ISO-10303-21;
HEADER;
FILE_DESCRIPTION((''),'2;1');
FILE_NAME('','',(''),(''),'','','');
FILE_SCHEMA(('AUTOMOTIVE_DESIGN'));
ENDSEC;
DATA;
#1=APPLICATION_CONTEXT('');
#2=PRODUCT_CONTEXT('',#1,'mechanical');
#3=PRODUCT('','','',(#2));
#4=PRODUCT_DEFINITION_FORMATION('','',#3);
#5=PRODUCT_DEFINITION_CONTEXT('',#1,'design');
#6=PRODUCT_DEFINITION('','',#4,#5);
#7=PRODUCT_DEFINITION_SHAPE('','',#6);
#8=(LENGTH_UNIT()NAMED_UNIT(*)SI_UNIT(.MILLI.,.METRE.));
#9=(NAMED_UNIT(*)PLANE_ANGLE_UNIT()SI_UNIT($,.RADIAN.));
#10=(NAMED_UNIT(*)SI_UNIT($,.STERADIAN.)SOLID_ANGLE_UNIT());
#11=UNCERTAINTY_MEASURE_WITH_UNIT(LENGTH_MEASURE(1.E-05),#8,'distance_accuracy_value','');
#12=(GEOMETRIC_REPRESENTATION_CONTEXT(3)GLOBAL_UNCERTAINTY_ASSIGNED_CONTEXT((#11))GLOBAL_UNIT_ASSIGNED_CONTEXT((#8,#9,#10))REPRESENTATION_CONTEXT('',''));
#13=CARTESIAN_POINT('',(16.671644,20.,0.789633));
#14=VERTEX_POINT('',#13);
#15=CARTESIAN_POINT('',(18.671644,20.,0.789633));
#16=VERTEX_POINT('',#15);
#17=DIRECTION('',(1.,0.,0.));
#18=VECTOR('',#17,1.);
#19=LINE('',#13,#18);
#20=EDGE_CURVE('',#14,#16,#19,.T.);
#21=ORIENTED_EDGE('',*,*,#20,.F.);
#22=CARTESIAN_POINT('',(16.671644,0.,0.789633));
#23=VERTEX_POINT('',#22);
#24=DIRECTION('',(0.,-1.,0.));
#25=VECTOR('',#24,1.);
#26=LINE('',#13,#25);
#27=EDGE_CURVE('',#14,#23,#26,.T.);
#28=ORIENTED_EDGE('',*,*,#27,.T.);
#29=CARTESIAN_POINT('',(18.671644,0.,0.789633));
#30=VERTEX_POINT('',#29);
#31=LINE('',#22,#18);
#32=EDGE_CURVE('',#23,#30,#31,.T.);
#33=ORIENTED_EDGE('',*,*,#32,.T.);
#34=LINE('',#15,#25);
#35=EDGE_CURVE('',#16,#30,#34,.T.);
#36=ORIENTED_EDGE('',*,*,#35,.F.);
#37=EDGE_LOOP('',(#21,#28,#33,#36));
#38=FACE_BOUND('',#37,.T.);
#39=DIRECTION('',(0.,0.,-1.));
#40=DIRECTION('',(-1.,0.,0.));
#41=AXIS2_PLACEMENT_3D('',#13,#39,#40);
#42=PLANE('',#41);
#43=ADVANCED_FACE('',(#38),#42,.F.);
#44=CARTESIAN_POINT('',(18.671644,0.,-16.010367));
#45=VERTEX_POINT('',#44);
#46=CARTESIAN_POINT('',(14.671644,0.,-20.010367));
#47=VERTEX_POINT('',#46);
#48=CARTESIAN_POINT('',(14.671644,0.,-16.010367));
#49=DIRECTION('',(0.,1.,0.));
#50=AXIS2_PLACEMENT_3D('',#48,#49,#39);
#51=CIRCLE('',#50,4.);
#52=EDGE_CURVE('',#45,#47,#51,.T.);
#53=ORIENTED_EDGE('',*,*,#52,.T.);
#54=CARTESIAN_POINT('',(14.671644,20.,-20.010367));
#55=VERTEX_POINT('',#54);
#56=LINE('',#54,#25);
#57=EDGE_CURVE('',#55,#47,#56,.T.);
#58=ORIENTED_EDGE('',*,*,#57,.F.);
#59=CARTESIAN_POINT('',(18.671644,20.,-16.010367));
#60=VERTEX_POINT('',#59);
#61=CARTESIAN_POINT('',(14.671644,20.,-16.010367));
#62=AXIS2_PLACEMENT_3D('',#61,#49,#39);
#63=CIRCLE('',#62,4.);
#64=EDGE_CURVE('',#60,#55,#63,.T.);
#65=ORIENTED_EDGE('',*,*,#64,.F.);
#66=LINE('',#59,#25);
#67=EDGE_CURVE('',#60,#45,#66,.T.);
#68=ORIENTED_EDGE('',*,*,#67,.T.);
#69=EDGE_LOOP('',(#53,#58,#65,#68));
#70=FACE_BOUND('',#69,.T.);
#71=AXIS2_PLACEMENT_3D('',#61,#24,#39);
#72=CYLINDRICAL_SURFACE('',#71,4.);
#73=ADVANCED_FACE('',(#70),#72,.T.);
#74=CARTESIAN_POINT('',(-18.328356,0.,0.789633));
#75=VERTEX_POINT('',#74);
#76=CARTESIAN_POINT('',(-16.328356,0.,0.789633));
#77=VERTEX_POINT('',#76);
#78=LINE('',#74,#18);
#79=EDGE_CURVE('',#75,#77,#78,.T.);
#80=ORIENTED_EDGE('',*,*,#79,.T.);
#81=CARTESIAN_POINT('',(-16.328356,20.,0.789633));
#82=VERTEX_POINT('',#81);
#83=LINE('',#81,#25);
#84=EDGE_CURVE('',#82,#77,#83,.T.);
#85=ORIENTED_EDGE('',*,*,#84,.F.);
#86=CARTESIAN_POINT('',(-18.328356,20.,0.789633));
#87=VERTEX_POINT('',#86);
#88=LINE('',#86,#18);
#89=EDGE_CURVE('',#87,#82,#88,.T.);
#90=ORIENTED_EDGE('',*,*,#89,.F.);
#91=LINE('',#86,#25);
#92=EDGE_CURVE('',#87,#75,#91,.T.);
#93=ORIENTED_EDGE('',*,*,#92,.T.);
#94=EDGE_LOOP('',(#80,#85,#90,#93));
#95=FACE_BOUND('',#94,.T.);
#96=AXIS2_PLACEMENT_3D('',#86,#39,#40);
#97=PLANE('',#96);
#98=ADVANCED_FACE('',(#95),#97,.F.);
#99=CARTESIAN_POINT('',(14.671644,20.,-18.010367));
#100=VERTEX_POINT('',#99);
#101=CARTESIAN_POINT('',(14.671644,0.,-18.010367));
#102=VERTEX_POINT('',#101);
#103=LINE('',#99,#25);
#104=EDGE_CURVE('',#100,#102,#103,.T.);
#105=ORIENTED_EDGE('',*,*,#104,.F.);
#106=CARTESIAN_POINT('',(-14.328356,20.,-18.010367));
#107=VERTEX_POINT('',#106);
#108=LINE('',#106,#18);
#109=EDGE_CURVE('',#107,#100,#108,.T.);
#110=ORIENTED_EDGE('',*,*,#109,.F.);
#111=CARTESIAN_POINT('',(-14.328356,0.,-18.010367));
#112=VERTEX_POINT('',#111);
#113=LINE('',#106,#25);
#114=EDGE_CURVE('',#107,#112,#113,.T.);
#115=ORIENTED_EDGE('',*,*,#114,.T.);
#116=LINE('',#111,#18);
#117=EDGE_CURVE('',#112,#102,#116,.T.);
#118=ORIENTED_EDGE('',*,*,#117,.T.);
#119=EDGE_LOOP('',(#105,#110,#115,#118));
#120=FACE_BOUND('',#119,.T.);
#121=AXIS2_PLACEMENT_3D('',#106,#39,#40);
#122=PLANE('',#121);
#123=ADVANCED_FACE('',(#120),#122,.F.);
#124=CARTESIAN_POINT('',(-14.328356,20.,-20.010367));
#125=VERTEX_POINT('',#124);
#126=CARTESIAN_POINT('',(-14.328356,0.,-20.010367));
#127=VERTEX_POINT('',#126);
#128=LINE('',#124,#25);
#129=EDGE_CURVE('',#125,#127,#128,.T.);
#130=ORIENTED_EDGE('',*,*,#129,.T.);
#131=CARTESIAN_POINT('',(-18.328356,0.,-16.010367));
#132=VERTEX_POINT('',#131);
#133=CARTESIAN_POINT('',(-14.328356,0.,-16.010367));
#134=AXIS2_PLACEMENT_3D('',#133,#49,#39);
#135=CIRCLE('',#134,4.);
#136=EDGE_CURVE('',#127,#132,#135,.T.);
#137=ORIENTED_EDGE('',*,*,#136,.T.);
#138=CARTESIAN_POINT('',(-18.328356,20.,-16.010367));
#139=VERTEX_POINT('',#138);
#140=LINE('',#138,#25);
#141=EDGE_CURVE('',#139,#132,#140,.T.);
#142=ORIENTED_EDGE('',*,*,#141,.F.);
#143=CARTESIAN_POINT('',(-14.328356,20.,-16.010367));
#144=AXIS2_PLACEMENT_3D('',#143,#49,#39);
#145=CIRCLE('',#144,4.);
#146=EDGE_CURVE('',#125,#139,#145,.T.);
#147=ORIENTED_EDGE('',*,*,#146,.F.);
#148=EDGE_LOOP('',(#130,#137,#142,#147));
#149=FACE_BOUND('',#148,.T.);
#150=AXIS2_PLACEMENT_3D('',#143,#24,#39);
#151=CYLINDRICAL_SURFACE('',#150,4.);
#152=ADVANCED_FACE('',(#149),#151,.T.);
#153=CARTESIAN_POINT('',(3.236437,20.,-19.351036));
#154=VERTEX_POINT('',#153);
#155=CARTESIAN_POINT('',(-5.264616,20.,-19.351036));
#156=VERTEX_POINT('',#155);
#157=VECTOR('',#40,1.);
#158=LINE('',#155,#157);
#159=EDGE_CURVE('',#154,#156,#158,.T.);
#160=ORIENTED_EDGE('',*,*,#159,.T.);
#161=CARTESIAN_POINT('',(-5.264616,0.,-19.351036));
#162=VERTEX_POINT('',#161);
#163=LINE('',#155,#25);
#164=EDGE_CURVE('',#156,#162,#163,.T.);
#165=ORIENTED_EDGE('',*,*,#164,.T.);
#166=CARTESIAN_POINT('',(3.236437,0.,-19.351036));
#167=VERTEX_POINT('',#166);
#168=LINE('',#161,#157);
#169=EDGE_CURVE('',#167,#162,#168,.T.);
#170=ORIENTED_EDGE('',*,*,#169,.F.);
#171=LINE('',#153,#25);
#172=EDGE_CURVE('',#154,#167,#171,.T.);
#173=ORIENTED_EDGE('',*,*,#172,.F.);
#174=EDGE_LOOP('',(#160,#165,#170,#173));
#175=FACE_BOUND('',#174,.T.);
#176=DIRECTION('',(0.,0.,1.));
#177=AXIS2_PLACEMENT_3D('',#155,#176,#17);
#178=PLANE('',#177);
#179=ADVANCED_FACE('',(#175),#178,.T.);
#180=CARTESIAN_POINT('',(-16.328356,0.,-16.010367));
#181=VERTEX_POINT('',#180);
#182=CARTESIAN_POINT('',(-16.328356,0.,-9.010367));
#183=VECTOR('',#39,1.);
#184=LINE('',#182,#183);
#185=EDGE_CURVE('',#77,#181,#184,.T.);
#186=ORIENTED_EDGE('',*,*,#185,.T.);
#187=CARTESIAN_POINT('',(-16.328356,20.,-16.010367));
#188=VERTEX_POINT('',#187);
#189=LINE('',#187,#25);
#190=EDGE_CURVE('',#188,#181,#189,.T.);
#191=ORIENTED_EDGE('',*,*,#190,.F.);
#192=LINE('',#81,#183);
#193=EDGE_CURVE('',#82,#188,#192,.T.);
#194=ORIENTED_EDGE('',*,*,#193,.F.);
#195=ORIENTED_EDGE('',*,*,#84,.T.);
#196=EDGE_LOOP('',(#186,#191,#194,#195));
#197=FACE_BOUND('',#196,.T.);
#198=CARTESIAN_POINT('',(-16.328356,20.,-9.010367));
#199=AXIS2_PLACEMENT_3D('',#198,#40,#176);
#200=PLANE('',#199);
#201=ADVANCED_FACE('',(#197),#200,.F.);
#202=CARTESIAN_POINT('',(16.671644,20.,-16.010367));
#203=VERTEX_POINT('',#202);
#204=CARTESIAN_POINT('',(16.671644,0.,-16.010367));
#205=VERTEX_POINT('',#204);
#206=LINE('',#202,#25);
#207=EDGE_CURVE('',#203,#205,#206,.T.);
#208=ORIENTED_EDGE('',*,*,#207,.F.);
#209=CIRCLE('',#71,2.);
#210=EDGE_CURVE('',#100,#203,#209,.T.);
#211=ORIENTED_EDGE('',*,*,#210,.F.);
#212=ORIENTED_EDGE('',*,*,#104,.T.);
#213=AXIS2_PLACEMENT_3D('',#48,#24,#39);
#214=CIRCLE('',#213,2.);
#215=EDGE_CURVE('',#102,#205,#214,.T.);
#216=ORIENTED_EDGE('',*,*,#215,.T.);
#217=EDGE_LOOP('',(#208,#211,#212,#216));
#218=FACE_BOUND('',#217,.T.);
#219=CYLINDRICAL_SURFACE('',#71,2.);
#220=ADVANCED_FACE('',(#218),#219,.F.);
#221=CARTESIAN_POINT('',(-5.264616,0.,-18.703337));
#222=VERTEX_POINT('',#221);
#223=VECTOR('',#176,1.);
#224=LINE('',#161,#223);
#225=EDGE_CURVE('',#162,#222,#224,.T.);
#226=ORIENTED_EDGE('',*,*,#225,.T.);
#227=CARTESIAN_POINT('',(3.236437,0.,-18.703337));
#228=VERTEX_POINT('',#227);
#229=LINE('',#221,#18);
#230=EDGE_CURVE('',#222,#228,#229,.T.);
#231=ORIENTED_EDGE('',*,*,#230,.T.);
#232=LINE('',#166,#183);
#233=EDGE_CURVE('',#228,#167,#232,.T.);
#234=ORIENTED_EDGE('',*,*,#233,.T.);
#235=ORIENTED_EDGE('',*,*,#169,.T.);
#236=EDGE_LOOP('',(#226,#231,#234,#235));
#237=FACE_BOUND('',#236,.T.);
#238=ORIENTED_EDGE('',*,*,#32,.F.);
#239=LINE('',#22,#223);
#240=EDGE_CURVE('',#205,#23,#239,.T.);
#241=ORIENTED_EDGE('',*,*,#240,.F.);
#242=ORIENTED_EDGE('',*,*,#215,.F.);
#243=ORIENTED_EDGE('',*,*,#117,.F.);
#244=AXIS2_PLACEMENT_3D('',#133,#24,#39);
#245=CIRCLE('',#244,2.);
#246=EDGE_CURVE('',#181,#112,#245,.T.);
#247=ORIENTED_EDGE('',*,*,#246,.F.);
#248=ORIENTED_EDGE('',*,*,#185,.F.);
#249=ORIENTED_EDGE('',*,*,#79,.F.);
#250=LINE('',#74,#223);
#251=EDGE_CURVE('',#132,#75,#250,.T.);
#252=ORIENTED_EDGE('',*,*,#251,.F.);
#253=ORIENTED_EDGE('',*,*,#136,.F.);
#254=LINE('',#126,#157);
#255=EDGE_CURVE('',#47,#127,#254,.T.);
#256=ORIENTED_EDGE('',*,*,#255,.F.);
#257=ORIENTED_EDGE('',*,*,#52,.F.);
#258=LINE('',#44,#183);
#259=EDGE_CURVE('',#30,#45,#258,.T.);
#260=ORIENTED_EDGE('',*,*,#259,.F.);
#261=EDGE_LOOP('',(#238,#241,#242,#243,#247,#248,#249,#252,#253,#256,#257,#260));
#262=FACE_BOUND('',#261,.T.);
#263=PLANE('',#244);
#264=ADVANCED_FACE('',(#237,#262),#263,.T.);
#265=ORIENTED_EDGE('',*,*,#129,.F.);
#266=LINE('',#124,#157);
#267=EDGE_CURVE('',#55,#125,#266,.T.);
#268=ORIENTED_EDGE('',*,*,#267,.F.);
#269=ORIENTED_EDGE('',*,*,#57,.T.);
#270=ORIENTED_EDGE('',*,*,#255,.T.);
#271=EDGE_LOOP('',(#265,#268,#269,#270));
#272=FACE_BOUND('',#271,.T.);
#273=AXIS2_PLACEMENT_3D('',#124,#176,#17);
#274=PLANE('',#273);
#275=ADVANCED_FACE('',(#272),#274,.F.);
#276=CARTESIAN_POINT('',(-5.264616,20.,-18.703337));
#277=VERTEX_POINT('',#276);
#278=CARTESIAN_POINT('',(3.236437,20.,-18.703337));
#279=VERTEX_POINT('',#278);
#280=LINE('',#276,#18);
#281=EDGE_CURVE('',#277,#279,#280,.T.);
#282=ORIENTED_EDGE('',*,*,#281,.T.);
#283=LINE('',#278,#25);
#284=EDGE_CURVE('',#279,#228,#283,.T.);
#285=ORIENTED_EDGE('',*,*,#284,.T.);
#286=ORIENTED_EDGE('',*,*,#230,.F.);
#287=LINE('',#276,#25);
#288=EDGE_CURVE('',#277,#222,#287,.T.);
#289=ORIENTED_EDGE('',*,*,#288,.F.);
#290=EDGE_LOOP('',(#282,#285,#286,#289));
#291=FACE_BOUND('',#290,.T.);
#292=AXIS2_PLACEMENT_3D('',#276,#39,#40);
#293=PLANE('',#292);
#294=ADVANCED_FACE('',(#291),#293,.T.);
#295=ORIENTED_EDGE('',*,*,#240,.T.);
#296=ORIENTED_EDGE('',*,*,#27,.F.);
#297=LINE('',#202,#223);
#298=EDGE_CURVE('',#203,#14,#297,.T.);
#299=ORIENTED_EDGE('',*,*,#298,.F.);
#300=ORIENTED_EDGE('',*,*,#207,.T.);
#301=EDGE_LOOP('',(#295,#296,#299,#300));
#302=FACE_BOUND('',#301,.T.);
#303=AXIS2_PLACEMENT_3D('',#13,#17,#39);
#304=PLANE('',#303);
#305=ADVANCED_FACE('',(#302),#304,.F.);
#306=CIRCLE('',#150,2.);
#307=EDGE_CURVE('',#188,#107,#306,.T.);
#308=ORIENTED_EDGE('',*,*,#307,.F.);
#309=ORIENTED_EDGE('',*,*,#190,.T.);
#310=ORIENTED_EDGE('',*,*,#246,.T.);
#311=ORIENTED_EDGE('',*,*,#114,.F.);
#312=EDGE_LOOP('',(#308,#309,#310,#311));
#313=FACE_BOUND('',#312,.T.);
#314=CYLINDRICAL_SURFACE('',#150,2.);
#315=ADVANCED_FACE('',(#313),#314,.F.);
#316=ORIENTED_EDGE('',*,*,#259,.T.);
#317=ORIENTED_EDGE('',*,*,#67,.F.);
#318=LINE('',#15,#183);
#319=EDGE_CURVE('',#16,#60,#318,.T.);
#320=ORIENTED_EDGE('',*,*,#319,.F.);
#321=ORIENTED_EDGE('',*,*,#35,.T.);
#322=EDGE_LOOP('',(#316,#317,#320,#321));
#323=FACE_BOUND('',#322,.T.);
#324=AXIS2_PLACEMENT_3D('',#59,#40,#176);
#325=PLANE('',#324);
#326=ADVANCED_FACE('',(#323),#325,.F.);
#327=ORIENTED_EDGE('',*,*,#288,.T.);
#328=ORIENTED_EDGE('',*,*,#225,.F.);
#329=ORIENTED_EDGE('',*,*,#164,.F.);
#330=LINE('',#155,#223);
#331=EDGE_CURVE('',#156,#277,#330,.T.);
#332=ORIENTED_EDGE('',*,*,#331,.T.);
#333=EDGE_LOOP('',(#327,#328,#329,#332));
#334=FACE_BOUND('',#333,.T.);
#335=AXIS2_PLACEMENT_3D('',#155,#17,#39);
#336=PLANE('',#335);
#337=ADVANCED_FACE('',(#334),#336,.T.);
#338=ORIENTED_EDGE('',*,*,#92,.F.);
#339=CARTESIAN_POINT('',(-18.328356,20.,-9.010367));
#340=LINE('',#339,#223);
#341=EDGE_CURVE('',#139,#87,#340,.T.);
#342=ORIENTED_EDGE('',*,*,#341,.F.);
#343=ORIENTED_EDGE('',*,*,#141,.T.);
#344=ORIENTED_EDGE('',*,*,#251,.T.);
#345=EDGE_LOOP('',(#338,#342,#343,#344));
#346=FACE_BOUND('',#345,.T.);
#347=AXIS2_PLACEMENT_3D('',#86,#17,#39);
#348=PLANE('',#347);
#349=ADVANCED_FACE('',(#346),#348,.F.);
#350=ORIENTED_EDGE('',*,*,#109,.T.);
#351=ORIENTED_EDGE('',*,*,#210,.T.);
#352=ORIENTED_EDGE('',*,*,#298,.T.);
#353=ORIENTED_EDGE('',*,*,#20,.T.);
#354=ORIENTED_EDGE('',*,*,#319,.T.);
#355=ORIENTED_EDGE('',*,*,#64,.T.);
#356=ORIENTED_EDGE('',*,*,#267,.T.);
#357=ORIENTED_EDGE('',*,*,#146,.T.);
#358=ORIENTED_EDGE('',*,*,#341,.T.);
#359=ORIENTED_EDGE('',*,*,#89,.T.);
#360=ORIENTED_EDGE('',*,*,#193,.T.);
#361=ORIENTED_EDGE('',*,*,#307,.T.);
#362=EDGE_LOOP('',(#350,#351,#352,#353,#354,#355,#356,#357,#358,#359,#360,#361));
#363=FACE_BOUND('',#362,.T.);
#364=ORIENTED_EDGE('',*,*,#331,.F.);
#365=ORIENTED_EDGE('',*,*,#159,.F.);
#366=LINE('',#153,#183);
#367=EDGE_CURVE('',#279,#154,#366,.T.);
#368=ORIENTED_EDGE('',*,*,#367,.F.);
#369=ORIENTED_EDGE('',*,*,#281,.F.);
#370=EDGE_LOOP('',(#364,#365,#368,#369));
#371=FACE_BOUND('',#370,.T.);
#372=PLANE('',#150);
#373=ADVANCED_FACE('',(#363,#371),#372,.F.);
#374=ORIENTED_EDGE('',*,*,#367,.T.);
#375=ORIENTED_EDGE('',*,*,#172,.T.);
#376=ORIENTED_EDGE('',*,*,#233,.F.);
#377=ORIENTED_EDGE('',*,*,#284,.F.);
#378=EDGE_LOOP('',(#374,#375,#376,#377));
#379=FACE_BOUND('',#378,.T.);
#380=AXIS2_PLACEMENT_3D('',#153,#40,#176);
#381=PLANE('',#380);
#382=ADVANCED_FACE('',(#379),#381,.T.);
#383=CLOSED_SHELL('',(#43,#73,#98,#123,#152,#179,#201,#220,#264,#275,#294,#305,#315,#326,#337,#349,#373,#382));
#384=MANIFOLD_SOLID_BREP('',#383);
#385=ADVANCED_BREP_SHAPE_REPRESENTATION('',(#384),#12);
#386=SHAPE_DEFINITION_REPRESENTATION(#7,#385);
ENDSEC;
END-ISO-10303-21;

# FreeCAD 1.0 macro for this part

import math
import FreeCAD as App
import Part
import Sketcher
from FreeCAD import Vector
Q = App.Units.Quantity

doc = App.newDocument("Part")
params = doc.addObject("Spreadsheet::Sheet", "Params")
for row, (alias, value) in enumerate([
    ("sketch1_radius", "2 mm"),
    ("sketch1_radius2", "4 mm"),
    ("sketch1_width", "29 mm"),
    ("sketch1_height", "16.8 mm"),
    ("pad1_length", "20 mm"),
], start=1):
    params.set(f"A{row}", alias)
    params.set(f"B{row}", "=" + value)
    params.setAlias(f"B{row}", alias)

body = doc.addObject("PartDesign::Body", "Body")

# Sketch on XZ plane
sketch1 = body.newObject("Sketcher::SketchObject", "Sketch")
sketch1.AttachmentSupport = (doc.getObject("XZ_Plane"), [""])
sketch1.MapMode = "FlatFace"
sketch1.addGeometry(Part.LineSegment(Vector(-16.3, 0.8, 0), Vector(-16.3, -16, 0)), False)
sketch1.addGeometry(Part.ArcOfCircle(Part.Circle(Vector(-14.3, -16, 0), Vector(0, 0, 1), 2), math.radians(180), math.radians(270)), False)
sketch1.addGeometry(Part.LineSegment(Vector(-14.3, -18, 0), Vector(14.7, -18, 0)), False)
sketch1.addGeometry(Part.ArcOfCircle(Part.Circle(Vector(14.7, -16, 0), Vector(0, 0, 1), 2), math.radians(-90), math.radians(0)), False)
sketch1.addGeometry(Part.LineSegment(Vector(16.7, -16, 0), Vector(16.7, 0.8, 0)), False)
sketch1.addGeometry(Part.LineSegment(Vector(16.7, 0.8, 0), Vector(18.7, 0.8, 0)), False)
sketch1.addGeometry(Part.LineSegment(Vector(18.7, 0.8, 0), Vector(18.7, -16, 0)), False)
sketch1.addGeometry(Part.ArcOfCircle(Part.Circle(Vector(14.7, -16, 0), Vector(0, 0, 1), 4), math.radians(-90), math.radians(0)), False)
sketch1.addGeometry(Part.LineSegment(Vector(14.7, -20, 0), Vector(-14.3, -20, 0)), False)
sketch1.addGeometry(Part.ArcOfCircle(Part.Circle(Vector(-14.3, -16, 0), Vector(0, 0, 1), 4), math.radians(-180), math.radians(-90)), False)
sketch1.addGeometry(Part.LineSegment(Vector(-18.3, -16, 0), Vector(-18.3, 0.8, 0)), False)
sketch1.addGeometry(Part.LineSegment(Vector(-18.3, 0.8, 0), Vector(-16.3, 0.8, 0)), False)
sketch1.addGeometry(Part.LineSegment(Vector(3.2, -18.7, 0), Vector(-5.3, -18.7, 0)), False)
sketch1.addGeometry(Part.LineSegment(Vector(-5.3, -18.7, 0), Vector(-5.3, -19.4, 0)), False)
sketch1.addGeometry(Part.LineSegment(Vector(-5.3, -19.4, 0), Vector(3.2, -19.4, 0)), False)
sketch1.addGeometry(Part.LineSegment(Vector(3.2, -19.4, 0), Vector(3.2, -18.7, 0)), False)
sketch1.addConstraint(Sketcher.Constraint("Tangent", 0, 2, 1, 1))
sketch1.addConstraint(Sketcher.Constraint("Tangent", 1, 2, 2, 1))
sketch1.addConstraint(Sketcher.Constraint("Tangent", 2, 2, 3, 1))
sketch1.addConstraint(Sketcher.Constraint("Tangent", 3, 2, 4, 1))
sketch1.addConstraint(Sketcher.Constraint("Coincident", 4, 2, 5, 1))
sketch1.addConstraint(Sketcher.Constraint("Coincident", 5, 2, 6, 1))
sketch1.addConstraint(Sketcher.Constraint("Tangent", 6, 2, 7, 2))
sketch1.addConstraint(Sketcher.Constraint("Tangent", 7, 1, 8, 1))
sketch1.addConstraint(Sketcher.Constraint("Tangent", 8, 2, 9, 2))
sketch1.addConstraint(Sketcher.Constraint("Tangent", 9, 1, 10, 1))
sketch1.addConstraint(Sketcher.Constraint("Coincident", 10, 2, 11, 1))
sketch1.addConstraint(Sketcher.Constraint("Coincident", 11, 2, 0, 1))
sketch1.addConstraint(Sketcher.Constraint("Coincident", 12, 2, 13, 1))
sketch1.addConstraint(Sketcher.Constraint("Coincident", 13, 2, 14, 1))
sketch1.addConstraint(Sketcher.Constraint("Coincident", 14, 2, 15, 1))
sketch1.addConstraint(Sketcher.Constraint("Coincident", 15, 2, 12, 1))
sketch1.addConstraint(Sketcher.Constraint("Vertical", 0))
sketch1.addConstraint(Sketcher.Constraint("Horizontal", 2))
sketch1.addConstraint(Sketcher.Constraint("Vertical", 4))
sketch1.addConstraint(Sketcher.Constraint("Horizontal", 5))
sketch1.addConstraint(Sketcher.Constraint("Vertical", 6))
sketch1.addConstraint(Sketcher.Constraint("Horizontal", 8))
sketch1.addConstraint(Sketcher.Constraint("Vertical", 10))
sketch1.addConstraint(Sketcher.Constraint("Horizontal", 11))
sketch1.addConstraint(Sketcher.Constraint("Horizontal", 12))
sketch1.addConstraint(Sketcher.Constraint("Vertical", 13))
sketch1.addConstraint(Sketcher.Constraint("Horizontal", 14))
sketch1.addConstraint(Sketcher.Constraint("Vertical", 15))
sketch1.addConstraint(Sketcher.Constraint("Coincident", 7, 3, 3, 3))
sketch1.addConstraint(Sketcher.Constraint("Coincident", 9, 3, 1, 3))
sketch1.addConstraint(Sketcher.Constraint("Equal", 1, 3))
sketch1.addConstraint(Sketcher.Constraint("Horizontal", 5, 2, 10, 2))
sketch1.addConstraint(Sketcher.Constraint("Radius", 1, Q("2 mm")))
sketch1.addConstraint(Sketcher.Constraint("Radius", 7, Q("4 mm")))
sketch1.addConstraint(Sketcher.Constraint("DistanceX", 2, 1, 2, 2, Q("29 mm")))
sketch1.addConstraint(Sketcher.Constraint("DistanceY", 0, 2, 0, 1, Q("16.8 mm")))
sketch1.addConstraint(Sketcher.Constraint("DistanceY", 13, 2, 13, 1, Q("0.647699 mm")))
sketch1.addConstraint(Sketcher.Constraint("DistanceX", 12, 2, 12, 1, Q("8.501053 mm")))
sketch1.addConstraint(Sketcher.Constraint("DistanceX", 1, 2, 12, 2, Q("9.063739 mm")))
sketch1.addConstraint(Sketcher.Constraint("DistanceY", 12, 2, 1, 2, Q("0.692969 mm")))
sketch1.addConstraint(Sketcher.Constraint("DistanceX", 1, 3, -1, 1, Q("14.328356 mm")))
sketch1.addConstraint(Sketcher.Constraint("DistanceY", 1, 3, -1, 1, Q("16.010367 mm")))
sketch1.setExpression("Constraints[32]", "Params.sketch1_radius")
sketch1.setExpression("Constraints[33]", "Params.sketch1_radius2")
sketch1.setExpression("Constraints[34]", "Params.sketch1_width")
sketch1.setExpression("Constraints[35]", "Params.sketch1_height")
pad1 = body.newObject("PartDesign::Pad", "Pad")
pad1.Profile = sketch1
pad1.setExpression("Length", "Params.pad1_length")
pad1.Reversed = True

doc.recompute()
